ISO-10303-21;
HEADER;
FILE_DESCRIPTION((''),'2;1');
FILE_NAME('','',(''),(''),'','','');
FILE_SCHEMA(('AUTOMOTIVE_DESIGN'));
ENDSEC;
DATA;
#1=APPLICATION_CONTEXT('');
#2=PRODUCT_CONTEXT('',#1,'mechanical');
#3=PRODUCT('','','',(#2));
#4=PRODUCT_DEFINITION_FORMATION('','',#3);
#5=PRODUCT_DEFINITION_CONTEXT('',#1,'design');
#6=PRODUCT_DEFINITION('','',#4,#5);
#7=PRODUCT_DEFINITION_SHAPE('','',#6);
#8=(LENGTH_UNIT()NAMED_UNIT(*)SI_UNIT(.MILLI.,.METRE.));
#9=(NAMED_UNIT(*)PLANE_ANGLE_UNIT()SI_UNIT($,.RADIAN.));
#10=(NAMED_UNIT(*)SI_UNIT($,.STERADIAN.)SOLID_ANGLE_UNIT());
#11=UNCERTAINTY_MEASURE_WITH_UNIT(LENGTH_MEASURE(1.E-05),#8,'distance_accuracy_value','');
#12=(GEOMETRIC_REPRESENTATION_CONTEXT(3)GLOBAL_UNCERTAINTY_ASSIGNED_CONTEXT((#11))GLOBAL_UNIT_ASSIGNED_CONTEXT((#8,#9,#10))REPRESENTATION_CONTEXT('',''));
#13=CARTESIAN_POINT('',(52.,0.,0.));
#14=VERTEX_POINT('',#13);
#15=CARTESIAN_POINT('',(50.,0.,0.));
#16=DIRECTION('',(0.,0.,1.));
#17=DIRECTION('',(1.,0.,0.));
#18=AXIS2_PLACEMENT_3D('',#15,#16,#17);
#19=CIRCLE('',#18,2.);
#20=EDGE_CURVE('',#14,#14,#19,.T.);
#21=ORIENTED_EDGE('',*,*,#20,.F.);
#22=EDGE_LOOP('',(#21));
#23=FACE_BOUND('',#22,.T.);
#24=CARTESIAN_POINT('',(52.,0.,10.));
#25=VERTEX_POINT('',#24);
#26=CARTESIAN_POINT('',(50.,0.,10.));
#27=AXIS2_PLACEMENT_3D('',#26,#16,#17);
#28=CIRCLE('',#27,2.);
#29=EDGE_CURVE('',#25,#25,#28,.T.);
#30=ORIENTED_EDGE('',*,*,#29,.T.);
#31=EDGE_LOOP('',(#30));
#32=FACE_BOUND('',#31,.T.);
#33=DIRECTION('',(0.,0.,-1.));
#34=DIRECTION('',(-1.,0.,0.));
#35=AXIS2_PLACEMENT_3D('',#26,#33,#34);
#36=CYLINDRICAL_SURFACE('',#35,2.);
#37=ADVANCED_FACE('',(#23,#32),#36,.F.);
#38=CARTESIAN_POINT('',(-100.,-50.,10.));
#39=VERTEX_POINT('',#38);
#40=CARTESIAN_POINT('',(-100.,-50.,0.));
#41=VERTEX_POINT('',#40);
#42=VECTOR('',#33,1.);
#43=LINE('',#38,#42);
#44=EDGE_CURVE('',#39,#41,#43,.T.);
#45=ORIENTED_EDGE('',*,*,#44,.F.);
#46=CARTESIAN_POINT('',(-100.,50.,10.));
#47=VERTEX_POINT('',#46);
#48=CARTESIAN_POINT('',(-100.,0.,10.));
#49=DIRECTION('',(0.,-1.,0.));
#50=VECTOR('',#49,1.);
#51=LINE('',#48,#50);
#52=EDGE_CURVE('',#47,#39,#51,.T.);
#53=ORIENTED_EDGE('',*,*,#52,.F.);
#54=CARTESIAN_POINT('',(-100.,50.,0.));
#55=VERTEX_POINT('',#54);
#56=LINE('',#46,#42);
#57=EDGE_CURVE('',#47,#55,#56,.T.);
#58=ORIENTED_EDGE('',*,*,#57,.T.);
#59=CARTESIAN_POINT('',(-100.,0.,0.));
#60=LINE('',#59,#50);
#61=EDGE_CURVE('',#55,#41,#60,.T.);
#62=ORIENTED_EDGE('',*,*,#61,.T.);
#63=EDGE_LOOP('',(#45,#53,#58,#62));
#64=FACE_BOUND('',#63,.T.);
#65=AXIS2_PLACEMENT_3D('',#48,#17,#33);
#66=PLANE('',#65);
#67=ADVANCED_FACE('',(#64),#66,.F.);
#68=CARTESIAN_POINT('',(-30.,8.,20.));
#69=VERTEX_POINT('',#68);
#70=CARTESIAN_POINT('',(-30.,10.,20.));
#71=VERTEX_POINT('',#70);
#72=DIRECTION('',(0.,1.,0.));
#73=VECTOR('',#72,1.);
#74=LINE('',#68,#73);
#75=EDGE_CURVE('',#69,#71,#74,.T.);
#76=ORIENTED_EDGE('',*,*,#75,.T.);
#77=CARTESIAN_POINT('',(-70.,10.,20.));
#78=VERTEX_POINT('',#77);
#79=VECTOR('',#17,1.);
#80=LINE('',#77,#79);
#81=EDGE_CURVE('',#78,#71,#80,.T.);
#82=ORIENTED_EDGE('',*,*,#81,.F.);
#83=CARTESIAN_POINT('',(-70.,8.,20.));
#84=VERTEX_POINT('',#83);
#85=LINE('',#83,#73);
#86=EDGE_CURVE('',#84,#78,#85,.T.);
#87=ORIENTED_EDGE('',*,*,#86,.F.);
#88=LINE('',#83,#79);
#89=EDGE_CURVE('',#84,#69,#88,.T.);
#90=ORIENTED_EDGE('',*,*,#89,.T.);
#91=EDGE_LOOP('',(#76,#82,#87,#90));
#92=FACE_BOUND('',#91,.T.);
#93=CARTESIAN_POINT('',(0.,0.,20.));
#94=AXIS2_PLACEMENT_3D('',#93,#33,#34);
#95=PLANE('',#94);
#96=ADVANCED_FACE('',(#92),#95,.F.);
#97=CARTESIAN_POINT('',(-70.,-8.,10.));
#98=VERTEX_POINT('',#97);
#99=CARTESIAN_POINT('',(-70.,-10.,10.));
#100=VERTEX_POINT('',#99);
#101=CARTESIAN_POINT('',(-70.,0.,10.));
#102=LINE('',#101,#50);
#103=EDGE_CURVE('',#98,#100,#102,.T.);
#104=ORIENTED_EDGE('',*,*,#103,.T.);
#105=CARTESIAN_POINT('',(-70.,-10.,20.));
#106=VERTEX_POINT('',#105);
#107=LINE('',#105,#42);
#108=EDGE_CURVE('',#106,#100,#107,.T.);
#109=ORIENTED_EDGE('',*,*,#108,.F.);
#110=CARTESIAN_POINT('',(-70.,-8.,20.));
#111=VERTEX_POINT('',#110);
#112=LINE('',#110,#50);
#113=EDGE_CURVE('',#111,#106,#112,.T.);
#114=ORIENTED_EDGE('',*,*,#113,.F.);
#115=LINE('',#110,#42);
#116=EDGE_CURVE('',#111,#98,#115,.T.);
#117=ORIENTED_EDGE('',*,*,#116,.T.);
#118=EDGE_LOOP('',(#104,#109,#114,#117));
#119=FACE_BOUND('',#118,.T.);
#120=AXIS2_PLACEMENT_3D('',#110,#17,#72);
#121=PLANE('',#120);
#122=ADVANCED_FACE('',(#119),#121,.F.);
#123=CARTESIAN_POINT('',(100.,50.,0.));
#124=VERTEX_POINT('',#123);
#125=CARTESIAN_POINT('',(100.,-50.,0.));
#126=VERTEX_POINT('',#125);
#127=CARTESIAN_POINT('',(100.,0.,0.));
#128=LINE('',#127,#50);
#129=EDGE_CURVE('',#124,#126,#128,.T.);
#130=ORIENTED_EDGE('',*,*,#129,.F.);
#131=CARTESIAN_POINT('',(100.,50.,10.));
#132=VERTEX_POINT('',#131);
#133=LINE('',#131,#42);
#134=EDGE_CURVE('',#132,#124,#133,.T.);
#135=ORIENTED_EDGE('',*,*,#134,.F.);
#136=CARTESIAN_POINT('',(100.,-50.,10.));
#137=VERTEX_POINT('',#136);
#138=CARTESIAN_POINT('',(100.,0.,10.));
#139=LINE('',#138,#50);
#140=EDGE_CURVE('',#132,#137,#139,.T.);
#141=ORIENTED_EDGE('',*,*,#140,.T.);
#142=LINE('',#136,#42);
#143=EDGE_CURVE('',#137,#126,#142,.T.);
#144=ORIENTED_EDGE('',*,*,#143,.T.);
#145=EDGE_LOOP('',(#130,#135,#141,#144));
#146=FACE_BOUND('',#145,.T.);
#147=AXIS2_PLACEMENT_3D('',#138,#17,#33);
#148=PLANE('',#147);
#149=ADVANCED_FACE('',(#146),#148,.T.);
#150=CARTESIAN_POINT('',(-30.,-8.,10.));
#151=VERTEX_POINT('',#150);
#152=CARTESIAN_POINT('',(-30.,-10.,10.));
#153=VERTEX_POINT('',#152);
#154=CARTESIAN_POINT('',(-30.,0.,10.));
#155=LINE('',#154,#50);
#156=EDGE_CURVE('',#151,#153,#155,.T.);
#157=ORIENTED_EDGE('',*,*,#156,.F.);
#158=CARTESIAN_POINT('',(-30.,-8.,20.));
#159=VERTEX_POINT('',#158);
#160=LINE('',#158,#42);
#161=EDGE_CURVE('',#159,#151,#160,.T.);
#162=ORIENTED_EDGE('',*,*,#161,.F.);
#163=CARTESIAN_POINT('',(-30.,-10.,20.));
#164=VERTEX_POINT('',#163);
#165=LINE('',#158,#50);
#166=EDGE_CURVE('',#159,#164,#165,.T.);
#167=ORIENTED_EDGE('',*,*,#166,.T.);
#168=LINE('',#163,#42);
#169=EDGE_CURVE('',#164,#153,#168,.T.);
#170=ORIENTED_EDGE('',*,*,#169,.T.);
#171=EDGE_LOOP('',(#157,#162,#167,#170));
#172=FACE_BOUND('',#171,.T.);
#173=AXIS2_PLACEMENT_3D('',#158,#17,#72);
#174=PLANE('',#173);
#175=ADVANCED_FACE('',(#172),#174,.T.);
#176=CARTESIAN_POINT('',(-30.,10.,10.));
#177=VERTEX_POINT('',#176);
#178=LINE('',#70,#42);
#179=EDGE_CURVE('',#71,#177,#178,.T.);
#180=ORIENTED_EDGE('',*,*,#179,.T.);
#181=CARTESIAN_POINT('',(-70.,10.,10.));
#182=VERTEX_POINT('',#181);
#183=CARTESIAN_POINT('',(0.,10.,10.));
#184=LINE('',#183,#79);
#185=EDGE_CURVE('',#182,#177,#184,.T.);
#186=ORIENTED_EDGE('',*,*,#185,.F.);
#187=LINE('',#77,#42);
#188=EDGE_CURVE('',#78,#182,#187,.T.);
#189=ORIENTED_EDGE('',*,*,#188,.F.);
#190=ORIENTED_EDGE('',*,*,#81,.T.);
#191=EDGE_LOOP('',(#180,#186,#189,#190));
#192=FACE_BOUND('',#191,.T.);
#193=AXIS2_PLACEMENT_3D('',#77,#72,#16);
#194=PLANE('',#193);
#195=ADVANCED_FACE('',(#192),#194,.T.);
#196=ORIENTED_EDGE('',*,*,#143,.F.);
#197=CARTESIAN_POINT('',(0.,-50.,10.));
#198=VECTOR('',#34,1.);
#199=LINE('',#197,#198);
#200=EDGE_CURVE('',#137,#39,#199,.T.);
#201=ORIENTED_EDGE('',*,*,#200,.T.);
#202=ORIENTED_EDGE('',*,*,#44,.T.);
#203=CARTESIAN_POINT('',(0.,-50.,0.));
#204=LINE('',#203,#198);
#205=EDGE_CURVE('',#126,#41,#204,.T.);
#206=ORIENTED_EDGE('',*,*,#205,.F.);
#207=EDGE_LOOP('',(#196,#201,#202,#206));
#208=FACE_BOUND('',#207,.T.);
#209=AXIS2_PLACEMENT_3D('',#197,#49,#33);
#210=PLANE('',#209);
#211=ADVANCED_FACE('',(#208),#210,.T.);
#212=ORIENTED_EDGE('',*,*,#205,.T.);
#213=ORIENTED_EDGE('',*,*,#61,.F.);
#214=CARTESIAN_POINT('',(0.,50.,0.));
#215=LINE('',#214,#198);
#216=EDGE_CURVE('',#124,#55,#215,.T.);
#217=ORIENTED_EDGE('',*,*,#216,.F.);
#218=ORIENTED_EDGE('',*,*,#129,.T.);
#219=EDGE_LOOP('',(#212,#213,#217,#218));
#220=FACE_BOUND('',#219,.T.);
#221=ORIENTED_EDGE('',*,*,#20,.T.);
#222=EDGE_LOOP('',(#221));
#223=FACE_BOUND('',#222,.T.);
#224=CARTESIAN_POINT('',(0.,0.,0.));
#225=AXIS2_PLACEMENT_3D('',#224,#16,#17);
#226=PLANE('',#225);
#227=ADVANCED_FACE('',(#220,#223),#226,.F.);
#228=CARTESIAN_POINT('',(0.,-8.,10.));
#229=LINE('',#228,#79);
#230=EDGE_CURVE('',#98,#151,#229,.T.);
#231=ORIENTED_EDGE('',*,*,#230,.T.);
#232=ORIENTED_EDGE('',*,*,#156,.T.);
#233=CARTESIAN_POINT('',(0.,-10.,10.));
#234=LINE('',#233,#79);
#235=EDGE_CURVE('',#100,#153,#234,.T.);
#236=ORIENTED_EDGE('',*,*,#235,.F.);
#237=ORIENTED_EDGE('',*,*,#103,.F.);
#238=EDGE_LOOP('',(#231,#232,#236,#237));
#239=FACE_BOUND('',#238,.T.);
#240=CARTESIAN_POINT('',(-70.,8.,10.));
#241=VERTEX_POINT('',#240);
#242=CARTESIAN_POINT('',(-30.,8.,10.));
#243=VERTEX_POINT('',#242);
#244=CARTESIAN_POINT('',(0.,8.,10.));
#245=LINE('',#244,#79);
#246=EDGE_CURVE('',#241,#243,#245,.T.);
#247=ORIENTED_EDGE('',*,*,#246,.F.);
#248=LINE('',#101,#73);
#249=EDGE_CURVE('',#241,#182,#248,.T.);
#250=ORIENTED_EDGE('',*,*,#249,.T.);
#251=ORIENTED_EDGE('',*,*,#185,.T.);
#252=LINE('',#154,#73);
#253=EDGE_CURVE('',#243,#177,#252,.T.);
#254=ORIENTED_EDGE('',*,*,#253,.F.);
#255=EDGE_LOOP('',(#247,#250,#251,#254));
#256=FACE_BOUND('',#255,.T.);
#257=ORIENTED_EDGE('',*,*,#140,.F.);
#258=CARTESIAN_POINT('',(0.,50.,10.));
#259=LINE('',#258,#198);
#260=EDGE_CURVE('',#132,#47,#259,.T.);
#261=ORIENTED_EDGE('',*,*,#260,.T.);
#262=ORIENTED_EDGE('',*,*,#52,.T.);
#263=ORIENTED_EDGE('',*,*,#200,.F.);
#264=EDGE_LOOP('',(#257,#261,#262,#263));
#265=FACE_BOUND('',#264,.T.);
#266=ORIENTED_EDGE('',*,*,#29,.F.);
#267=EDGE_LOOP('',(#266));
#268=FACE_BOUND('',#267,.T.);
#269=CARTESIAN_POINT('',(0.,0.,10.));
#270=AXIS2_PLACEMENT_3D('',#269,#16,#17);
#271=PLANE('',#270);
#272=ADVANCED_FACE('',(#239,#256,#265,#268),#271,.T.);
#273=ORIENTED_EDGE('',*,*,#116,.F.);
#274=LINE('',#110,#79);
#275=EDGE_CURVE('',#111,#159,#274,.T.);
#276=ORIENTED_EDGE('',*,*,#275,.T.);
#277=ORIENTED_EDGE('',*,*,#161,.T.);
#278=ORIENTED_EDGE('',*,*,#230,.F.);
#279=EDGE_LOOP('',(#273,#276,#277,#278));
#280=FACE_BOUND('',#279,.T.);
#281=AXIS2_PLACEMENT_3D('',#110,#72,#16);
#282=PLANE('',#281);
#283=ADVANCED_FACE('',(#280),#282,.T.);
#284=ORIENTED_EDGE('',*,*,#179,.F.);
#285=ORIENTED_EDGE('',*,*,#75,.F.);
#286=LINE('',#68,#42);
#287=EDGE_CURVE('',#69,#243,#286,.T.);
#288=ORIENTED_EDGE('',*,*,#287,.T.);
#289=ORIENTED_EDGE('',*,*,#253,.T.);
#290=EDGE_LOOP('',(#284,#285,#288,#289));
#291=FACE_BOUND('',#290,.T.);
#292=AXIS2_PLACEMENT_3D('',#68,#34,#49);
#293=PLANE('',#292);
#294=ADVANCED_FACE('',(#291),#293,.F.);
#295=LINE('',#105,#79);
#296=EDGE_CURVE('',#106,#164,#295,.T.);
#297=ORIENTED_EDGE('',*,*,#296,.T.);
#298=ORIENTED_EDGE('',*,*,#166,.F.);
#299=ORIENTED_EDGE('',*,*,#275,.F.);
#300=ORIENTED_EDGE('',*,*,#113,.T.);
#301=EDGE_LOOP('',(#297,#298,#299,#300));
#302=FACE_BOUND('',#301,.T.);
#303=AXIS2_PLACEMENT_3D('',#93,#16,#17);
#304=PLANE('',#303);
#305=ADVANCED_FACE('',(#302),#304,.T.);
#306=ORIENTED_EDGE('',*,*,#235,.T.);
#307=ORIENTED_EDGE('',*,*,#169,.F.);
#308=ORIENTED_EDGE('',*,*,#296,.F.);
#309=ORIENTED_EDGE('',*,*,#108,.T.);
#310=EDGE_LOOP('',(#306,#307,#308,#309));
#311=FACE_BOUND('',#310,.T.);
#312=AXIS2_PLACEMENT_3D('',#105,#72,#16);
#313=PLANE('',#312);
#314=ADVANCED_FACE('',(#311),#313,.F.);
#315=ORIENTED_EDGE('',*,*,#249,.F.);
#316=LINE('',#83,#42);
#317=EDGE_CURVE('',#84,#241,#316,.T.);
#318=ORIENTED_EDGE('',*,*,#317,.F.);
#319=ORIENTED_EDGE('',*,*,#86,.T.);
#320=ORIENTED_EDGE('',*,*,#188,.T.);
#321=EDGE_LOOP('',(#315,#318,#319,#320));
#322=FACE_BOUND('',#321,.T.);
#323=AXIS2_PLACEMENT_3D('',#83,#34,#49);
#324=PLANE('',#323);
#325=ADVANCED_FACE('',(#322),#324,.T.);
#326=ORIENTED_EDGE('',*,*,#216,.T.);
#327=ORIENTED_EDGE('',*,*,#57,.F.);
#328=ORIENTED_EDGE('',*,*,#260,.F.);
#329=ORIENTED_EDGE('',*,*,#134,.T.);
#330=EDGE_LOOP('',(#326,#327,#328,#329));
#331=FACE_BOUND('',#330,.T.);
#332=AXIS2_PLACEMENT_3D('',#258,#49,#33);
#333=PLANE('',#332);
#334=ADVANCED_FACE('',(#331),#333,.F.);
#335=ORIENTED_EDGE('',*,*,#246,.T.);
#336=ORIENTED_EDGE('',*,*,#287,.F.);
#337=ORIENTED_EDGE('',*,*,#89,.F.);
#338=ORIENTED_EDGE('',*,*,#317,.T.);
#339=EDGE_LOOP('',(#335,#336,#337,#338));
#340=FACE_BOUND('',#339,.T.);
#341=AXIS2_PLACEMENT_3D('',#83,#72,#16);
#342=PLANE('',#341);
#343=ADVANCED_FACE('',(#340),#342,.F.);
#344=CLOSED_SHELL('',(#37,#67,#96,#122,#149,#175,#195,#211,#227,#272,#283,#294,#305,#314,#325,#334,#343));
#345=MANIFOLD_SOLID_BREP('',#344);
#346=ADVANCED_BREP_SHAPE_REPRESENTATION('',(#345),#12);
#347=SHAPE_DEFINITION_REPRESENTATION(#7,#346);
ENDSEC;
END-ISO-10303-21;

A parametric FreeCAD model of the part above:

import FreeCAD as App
import Part
import Sketcher
from FreeCAD import Vector

doc = App.newDocument("Part")
params = doc.addObject("Spreadsheet::Sheet", "Params")
for row, (alias, value) in enumerate([
    ("sketch1_diameter", "4 mm"),
    ("sketch1_width", "200 mm"),
    ("sketch1_width2", "40 mm"),
    ("sketch1_height", "100 mm"),
    ("sketch1_height2", "2 mm"),
    ("pad1_length", "10 mm"),
    ("sketch2_width", "40 mm"),
    ("sketch2_height", "2 mm"),
    ("pad2_length", "20 mm"),
], start=1):
    params.set(f"A{row}", alias)
    params.set(f"B{row}", "=" + value)
    params.setAlias(f"B{row}", alias)

body = doc.addObject("PartDesign::Body", "Body")

# Sketch on XY plane
sketch1 = doc.addObject("Sketcher::SketchObject", "Sketch")
body.addObject(sketch1)
sketch1.AttachmentSupport = (doc.XY_Plane, [""])
sketch1.MapMode = "FlatFace"
sketch1.addGeometry(Part.LineSegment(Vector(-100, 50, 0), Vector(-100, -50, 0)), False)
sketch1.addGeometry(Part.LineSegment(Vector(-100, -50, 0), Vector(100, -50, 0)), False)
sketch1.addGeometry(Part.LineSegment(Vector(100, -50, 0), Vector(100, 50, 0)), False)
sketch1.addGeometry(Part.LineSegment(Vector(100, 50, 0), Vector(-100, 50, 0)), False)
sketch1.addGeometry(Part.LineSegment(Vector(-30, -10, 0), Vector(-70, -10, 0)), False)
sketch1.addGeometry(Part.LineSegment(Vector(-70, -10, 0), Vector(-70, -8, 0)), False)
sketch1.addGeometry(Part.LineSegment(Vector(-70, -8, 0), Vector(-30, -8, 0)), False)
sketch1.addGeometry(Part.LineSegment(Vector(-30, -8, 0), Vector(-30, -10, 0)), False)
sketch1.addGeometry(Part.LineSegment(Vector(-30, 8, 0), Vector(-70, 8, 0)), False)
sketch1.addGeometry(Part.LineSegment(Vector(-70, 8, 0), Vector(-70, 10, 0)), False)
sketch1.addGeometry(Part.LineSegment(Vector(-70, 10, 0), Vector(-30, 10, 0)), False)
sketch1.addGeometry(Part.LineSegment(Vector(-30, 10, 0), Vector(-30, 8, 0)), False)
sketch1.addGeometry(Part.Circle(Vector(50, 0, 0), Vector(0, 0, 1), 2), False)
sketch1.addConstraint(Sketcher.Constraint("Coincident", 0, 2, 1, 1))
sketch1.addConstraint(Sketcher.Constraint("Coincident", 1, 2, 2, 1))
sketch1.addConstraint(Sketcher.Constraint("Coincident", 2, 2, 3, 1))
sketch1.addConstraint(Sketcher.Constraint("Coincident", 3, 2, 0, 1))
sketch1.addConstraint(Sketcher.Constraint("Coincident", 4, 2, 5, 1))
sketch1.addConstraint(Sketcher.Constraint("Coincident", 5, 2, 6, 1))
sketch1.addConstraint(Sketcher.Constraint("Coincident", 6, 2, 7, 1))
sketch1.addConstraint(Sketcher.Constraint("Coincident", 7, 2, 4, 1))
sketch1.addConstraint(Sketcher.Constraint("Coincident", 8, 2, 9, 1))
sketch1.addConstraint(Sketcher.Constraint("Coincident", 9, 2, 10, 1))
sketch1.addConstraint(Sketcher.Constraint("Coincident", 10, 2, 11, 1))
sketch1.addConstraint(Sketcher.Constraint("Coincident", 11, 2, 8, 1))
sketch1.addConstraint(Sketcher.Constraint("Vertical", 0))
sketch1.addConstraint(Sketcher.Constraint("Horizontal", 1))
sketch1.addConstraint(Sketcher.Constraint("Vertical", 2))
sketch1.addConstraint(Sketcher.Constraint("Horizontal", 3))
sketch1.addConstraint(Sketcher.Constraint("Horizontal", 4))
sketch1.addConstraint(Sketcher.Constraint("Vertical", 5))
sketch1.addConstraint(Sketcher.Constraint("Horizontal", 6))
sketch1.addConstraint(Sketcher.Constraint("Vertical", 7))
sketch1.addConstraint(Sketcher.Constraint("Horizontal", 8))
sketch1.addConstraint(Sketcher.Constraint("Vertical", 9))
sketch1.addConstraint(Sketcher.Constraint("Horizontal", 10))
sketch1.addConstraint(Sketcher.Constraint("Vertical", 11))
sketch1.addConstraint(Sketcher.Constraint("Symmetric", 0, 2, 2, 2, -1, 1))
sketch1.addConstraint(Sketcher.Constraint("Symmetric", 5, 2, 8, 2, -1))
sketch1.addConstraint(Sketcher.Constraint("Symmetric", 7, 2, 10, 2, -1))
sketch1.addConstraint(Sketcher.Constraint("PointOnObject", 12, 3, -1))
sketch1.addConstraint(Sketcher.Constraint("Diameter", 12, 4.0))
sketch1.addConstraint(Sketcher.Constraint("DistanceX", 1, 1, 1, 2, 200.0))
sketch1.addConstraint(Sketcher.Constraint("DistanceX", 4, 2, 4, 1, 40.0))
sketch1.addConstraint(Sketcher.Constraint("DistanceY", 0, 2, 0, 1, 100.0))
sketch1.addConstraint(Sketcher.Constraint("DistanceY", 5, 1, 5, 2, 2.0))
sketch1.addConstraint(Sketcher.Constraint("DistanceX", -1, 1, 12, 3, 50.0))
sketch1.addConstraint(Sketcher.Constraint("DistanceX", 4, 2, -1, 1, 70.0))
sketch1.addConstraint(Sketcher.Constraint("DistanceY", 4, 2, -1, 1, 10.0))
sketch1.setExpression("Constraints[28]", "Params.sketch1_diameter")
sketch1.setExpression("Constraints[29]", "Params.sketch1_width")
sketch1.setExpression("Constraints[30]", "Params.sketch1_width2")
sketch1.setExpression("Constraints[31]", "Params.sketch1_height")
sketch1.setExpression("Constraints[32]", "Params.sketch1_height2")
pad1 = doc.addObject("PartDesign::Pad", "Pad")
body.addObject(pad1)
pad1.Profile = sketch1
pad1.setExpression("Length", "Params.pad1_length")

# Sketch on XY plane
sketch2 = doc.addObject("Sketcher::SketchObject", "Sketch001")
body.addObject(sketch2)
sketch2.AttachmentSupport = (doc.XY_Plane, [""])
sketch2.MapMode = "FlatFace"
sketch2.addGeometry(Part.LineSegment(Vector(-70, 10, 0), Vector(-70, 8, 0)), False)
sketch2.addGeometry(Part.LineSegment(Vector(-70, 8, 0), Vector(-30, 8, 0)), False)
sketch2.addGeometry(Part.LineSegment(Vector(-30, 8, 0), Vector(-30, 10, 0)), False)
sketch2.addGeometry(Part.LineSegment(Vector(-30, 10, 0), Vector(-70, 10, 0)), False)
sketch2.addGeometry(Part.LineSegment(Vector(-70, -8, 0), Vector(-70, -10, 0)), False)
sketch2.addGeometry(Part.LineSegment(Vector(-70, -10, 0), Vector(-30, -10, 0)), False)
sketch2.addGeometry(Part.LineSegment(Vector(-30, -10, 0), Vector(-30, -8, 0)), False)
sketch2.addGeometry(Part.LineSegment(Vector(-30, -8, 0), Vector(-70, -8, 0)), False)
sketch2.addConstraint(Sketcher.Constraint("Coincident", 0, 2, 1, 1))
sketch2.addConstraint(Sketcher.Constraint("Coincident", 1, 2, 2, 1))
sketch2.addConstraint(Sketcher.Constraint("Coincident", 2, 2, 3, 1))
sketch2.addConstraint(Sketcher.Constraint("Coincident", 3, 2, 0, 1))
sketch2.addConstraint(Sketcher.Constraint("Coincident", 4, 2, 5, 1))
sketch2.addConstraint(Sketcher.Constraint("Coincident", 5, 2, 6, 1))
sketch2.addConstraint(Sketcher.Constraint("Coincident", 6, 2, 7, 1))
sketch2.addConstraint(Sketcher.Constraint("Coincident", 7, 2, 4, 1))
sketch2.addConstraint(Sketcher.Constraint("Vertical", 0))
sketch2.addConstraint(Sketcher.Constraint("Horizontal", 1))
sketch2.addConstraint(Sketcher.Constraint("Vertical", 2))
sketch2.addConstraint(Sketcher.Constraint("Horizontal", 3))
sketch2.addConstraint(Sketcher.Constraint("Vertical", 4))
sketch2.addConstraint(Sketcher.Constraint("Horizontal", 5))
sketch2.addConstraint(Sketcher.Constraint("Vertical", 6))
sketch2.addConstraint(Sketcher.Constraint("Horizontal", 7))
sketch2.addConstraint(Sketcher.Constraint("Symmetric", 3, 2, 4, 2, -1))
sketch2.addConstraint(Sketcher.Constraint("Symmetric", 1, 2, 6, 2, -1))
sketch2.addConstraint(Sketcher.Constraint("DistanceX", 1, 1, 1, 2, 40.0))
sketch2.addConstraint(Sketcher.Constraint("DistanceY", 0, 2, 0, 1, 2.0))
sketch2.addConstraint(Sketcher.Constraint("DistanceX", 0, 2, -1, 1, 70.0))
sketch2.addConstraint(Sketcher.Constraint("DistanceY", -1, 1, 0, 2, 8.0))
sketch2.setExpression("Constraints[18]", "Params.sketch2_width")
sketch2.setExpression("Constraints[19]", "Params.sketch2_height")
pad2 = doc.addObject("PartDesign::Pad", "Pad001")
body.addObject(pad2)
pad2.Profile = sketch2
pad2.setExpression("Length", "Params.pad2_length")

doc.recompute()
